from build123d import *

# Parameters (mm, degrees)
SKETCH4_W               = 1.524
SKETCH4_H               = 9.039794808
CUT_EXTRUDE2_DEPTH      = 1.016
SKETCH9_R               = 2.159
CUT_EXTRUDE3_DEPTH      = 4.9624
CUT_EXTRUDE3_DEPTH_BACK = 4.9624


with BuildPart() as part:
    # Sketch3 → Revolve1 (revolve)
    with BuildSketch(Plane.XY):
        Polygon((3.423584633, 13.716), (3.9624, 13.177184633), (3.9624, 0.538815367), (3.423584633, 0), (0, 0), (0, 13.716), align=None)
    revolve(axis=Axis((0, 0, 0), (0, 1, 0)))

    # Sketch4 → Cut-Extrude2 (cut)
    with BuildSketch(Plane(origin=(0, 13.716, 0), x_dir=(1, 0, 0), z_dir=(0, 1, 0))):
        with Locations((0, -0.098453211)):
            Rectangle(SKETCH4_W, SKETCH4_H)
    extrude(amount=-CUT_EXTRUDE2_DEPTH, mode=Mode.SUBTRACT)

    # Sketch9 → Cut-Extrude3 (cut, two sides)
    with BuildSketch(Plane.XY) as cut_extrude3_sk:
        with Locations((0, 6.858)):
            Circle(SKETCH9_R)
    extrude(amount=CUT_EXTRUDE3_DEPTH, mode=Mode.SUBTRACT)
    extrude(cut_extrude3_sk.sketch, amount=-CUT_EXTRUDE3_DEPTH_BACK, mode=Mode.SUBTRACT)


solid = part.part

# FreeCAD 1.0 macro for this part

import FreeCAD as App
import Part
import Sketcher

V = App.Vector
Q = App.Units.Quantity

doc = App.newDocument("Part")
params = doc.addObject("Spreadsheet::Sheet", "Params")
for row, (alias, value) in enumerate([
    ("sketch1_height", "0.54 in"),
    ("sketch1_length", "0.03 in"),
    ("revolution_angle", "360 deg"),
    ("sketch2_width", "0.06 in"),
    ("pocket1_length", "0.04 in"),
    ("sketch3_diameter", "0.17 in"),
], start=1):
    params.set(f"A{row}", alias)
    params.set(f"B{row}", "=" + value)
    params.setAlias(f"B{row}", alias)

body = doc.addObject("PartDesign::Body", "Body")

# Sketch on XY plane
sketch1 = body.newObject("Sketcher::SketchObject", "Sketch")
sketch1.AttachmentSupport = (doc.getObject("XY_Plane"), [""])
sketch1.MapMode = "FlatFace"
sketch1.addGeometry(Part.LineSegment(V(4, 13.2, 0), V(3.4, 13.7, 0)), False)
sketch1.addGeometry(Part.LineSegment(V(3.4, 13.7, 0), V(0, 13.7, 0)), False)
sketch1.addGeometry(Part.LineSegment(V(0, 13.7, 0), V(0, 0, 0)), False)
sketch1.addGeometry(Part.LineSegment(V(0, 0, 0), V(3.4, 0, 0)), False)
sketch1.addGeometry(Part.LineSegment(V(3.4, 0, 0), V(4, 0.5, 0)), False)
sketch1.addGeometry(Part.LineSegment(V(4, 0.5, 0), V(4, 13.2, 0)), False)
sketch1.addConstraint(Sketcher.Constraint("Coincident", 0, 2, 1, 1))
sketch1.addConstraint(Sketcher.Constraint("Coincident", 1, 2, 2, 1))
sketch1.addConstraint(Sketcher.Constraint("Coincident", 2, 2, 3, 1))
sketch1.addConstraint(Sketcher.Constraint("Coincident", 3, 2, 4, 1))
sketch1.addConstraint(Sketcher.Constraint("Coincident", 4, 2, 5, 1))
sketch1.addConstraint(Sketcher.Constraint("Coincident", 5, 2, 0, 1))
sketch1.addConstraint(Sketcher.Constraint("Horizontal", 1))
sketch1.addConstraint(Sketcher.Constraint("Vertical", 2))
sketch1.addConstraint(Sketcher.Constraint("Horizontal", 3))
sketch1.addConstraint(Sketcher.Constraint("Vertical", 5))
sketch1.addConstraint(Sketcher.Constraint("Coincident", 2, 2, -1, 1))
sketch1.addConstraint(Sketcher.Constraint("Perpendicular", 0, 4))
sketch1.addConstraint(Sketcher.Constraint("Vertical", 0, 2, 3, 2))
sketch1.addConstraint(Sketcher.Constraint("Equal", 0, 4))
sketch1.addConstraint(Sketcher.Constraint("DistanceY", 2, 2, 2, 1, Q("0.54 in")))
sketch1.addConstraint(Sketcher.Constraint("Distance", 0, Q("0.03 in")))
sketch1.addConstraint(Sketcher.Constraint("DistanceX", -1, 1, 4, 2, Q("0.156 in")))
sketch1.setExpression("Constraints[14]", "Params.sketch1_height")
sketch1.setExpression("Constraints[15]", "Params.sketch1_length")
revolution = body.newObject("PartDesign::Revolution", "Revolution")
revolution.Profile = sketch1
revolution.ReferenceAxis = (sketch1, ["V_Axis"])
revolution.setExpression("Angle", "Params.revolution_angle")

# Sketch on XZ plane
sketch2 = body.newObject("Sketcher::SketchObject", "Sketch001")
sketch2.AttachmentSupport = (doc.getObject("XZ_Plane"), [""])
sketch2.MapMode = "FlatFace"
sketch2.AttachmentOffset = App.Placement(V(0, 0, -0.54 * 25.4), App.Rotation())
sketch2.addGeometry(Part.LineSegment(V(-0.8, -4.4, 0), V(-0.8, 4.6, 0)), False)
sketch2.addGeometry(Part.LineSegment(V(-0.8, 4.6, 0), V(0.8, 4.6, 0)), False)
sketch2.addGeometry(Part.LineSegment(V(0.8, 4.6, 0), V(0.8, -4.4, 0)), False)
sketch2.addGeometry(Part.LineSegment(V(0.8, -4.4, 0), V(-0.8, -4.4, 0)), False)
sketch2.addConstraint(Sketcher.Constraint("Coincident", 0, 2, 1, 1))
sketch2.addConstraint(Sketcher.Constraint("Coincident", 1, 2, 2, 1))
sketch2.addConstraint(Sketcher.Constraint("Coincident", 2, 2, 3, 1))
sketch2.addConstraint(Sketcher.Constraint("Coincident", 3, 2, 0, 1))
sketch2.addConstraint(Sketcher.Constraint("Vertical", 0))
sketch2.addConstraint(Sketcher.Constraint("Horizontal", 1))
sketch2.addConstraint(Sketcher.Constraint("Vertical", 2))
sketch2.addConstraint(Sketcher.Constraint("Horizontal", 3))
sketch2.addConstraint(Sketcher.Constraint("DistanceX", 1, 1, 1, 2, Q("0.06 in")))
sketch2.addConstraint(Sketcher.Constraint("DistanceX", 0, 2, -1, 1, Q("0.03 in")))
sketch2.addConstraint(Sketcher.Constraint("DistanceY", 0, 1, 0, 2, 9.039795))
sketch2.addConstraint(Sketcher.Constraint("DistanceY", -1, 1, 0, 2, 4.618351))
sketch2.setExpression("Constraints[8]", "Params.sketch2_width")
pocket1 = body.newObject("PartDesign::Pocket", "Pocket")
pocket1.Profile = sketch2
pocket1.setExpression("Length", "Params.pocket1_length")
pocket1.Reversed = True

# Sketch on XY plane
sketch3 = body.newObject("Sketcher::SketchObject", "Sketch002")
sketch3.AttachmentSupport = (doc.getObject("XY_Plane"), [""])
sketch3.MapMode = "FlatFace"
sketch3.addGeometry(Part.Circle(V(0, 6.9, 0), V(0, 0, 1), 2.2), False)
sketch3.addConstraint(Sketcher.Constraint("PointOnObject", 0, 3, -2))
sketch3.addConstraint(Sketcher.Constraint("Diameter", 0, Q("0.17 in")))
sketch3.addConstraint(Sketcher.Constraint("DistanceY", -1, 1, 0, 3, Q("0.27 in")))
sketch3.setExpression("Constraints[1]", "Params.sketch3_diameter")
pocket2 = body.newObject("PartDesign::Pocket", "Pocket001")
pocket2.Profile = sketch3
pocket2.Type = "ThroughAll"
pocket2.Midplane = True

doc.recompute()
